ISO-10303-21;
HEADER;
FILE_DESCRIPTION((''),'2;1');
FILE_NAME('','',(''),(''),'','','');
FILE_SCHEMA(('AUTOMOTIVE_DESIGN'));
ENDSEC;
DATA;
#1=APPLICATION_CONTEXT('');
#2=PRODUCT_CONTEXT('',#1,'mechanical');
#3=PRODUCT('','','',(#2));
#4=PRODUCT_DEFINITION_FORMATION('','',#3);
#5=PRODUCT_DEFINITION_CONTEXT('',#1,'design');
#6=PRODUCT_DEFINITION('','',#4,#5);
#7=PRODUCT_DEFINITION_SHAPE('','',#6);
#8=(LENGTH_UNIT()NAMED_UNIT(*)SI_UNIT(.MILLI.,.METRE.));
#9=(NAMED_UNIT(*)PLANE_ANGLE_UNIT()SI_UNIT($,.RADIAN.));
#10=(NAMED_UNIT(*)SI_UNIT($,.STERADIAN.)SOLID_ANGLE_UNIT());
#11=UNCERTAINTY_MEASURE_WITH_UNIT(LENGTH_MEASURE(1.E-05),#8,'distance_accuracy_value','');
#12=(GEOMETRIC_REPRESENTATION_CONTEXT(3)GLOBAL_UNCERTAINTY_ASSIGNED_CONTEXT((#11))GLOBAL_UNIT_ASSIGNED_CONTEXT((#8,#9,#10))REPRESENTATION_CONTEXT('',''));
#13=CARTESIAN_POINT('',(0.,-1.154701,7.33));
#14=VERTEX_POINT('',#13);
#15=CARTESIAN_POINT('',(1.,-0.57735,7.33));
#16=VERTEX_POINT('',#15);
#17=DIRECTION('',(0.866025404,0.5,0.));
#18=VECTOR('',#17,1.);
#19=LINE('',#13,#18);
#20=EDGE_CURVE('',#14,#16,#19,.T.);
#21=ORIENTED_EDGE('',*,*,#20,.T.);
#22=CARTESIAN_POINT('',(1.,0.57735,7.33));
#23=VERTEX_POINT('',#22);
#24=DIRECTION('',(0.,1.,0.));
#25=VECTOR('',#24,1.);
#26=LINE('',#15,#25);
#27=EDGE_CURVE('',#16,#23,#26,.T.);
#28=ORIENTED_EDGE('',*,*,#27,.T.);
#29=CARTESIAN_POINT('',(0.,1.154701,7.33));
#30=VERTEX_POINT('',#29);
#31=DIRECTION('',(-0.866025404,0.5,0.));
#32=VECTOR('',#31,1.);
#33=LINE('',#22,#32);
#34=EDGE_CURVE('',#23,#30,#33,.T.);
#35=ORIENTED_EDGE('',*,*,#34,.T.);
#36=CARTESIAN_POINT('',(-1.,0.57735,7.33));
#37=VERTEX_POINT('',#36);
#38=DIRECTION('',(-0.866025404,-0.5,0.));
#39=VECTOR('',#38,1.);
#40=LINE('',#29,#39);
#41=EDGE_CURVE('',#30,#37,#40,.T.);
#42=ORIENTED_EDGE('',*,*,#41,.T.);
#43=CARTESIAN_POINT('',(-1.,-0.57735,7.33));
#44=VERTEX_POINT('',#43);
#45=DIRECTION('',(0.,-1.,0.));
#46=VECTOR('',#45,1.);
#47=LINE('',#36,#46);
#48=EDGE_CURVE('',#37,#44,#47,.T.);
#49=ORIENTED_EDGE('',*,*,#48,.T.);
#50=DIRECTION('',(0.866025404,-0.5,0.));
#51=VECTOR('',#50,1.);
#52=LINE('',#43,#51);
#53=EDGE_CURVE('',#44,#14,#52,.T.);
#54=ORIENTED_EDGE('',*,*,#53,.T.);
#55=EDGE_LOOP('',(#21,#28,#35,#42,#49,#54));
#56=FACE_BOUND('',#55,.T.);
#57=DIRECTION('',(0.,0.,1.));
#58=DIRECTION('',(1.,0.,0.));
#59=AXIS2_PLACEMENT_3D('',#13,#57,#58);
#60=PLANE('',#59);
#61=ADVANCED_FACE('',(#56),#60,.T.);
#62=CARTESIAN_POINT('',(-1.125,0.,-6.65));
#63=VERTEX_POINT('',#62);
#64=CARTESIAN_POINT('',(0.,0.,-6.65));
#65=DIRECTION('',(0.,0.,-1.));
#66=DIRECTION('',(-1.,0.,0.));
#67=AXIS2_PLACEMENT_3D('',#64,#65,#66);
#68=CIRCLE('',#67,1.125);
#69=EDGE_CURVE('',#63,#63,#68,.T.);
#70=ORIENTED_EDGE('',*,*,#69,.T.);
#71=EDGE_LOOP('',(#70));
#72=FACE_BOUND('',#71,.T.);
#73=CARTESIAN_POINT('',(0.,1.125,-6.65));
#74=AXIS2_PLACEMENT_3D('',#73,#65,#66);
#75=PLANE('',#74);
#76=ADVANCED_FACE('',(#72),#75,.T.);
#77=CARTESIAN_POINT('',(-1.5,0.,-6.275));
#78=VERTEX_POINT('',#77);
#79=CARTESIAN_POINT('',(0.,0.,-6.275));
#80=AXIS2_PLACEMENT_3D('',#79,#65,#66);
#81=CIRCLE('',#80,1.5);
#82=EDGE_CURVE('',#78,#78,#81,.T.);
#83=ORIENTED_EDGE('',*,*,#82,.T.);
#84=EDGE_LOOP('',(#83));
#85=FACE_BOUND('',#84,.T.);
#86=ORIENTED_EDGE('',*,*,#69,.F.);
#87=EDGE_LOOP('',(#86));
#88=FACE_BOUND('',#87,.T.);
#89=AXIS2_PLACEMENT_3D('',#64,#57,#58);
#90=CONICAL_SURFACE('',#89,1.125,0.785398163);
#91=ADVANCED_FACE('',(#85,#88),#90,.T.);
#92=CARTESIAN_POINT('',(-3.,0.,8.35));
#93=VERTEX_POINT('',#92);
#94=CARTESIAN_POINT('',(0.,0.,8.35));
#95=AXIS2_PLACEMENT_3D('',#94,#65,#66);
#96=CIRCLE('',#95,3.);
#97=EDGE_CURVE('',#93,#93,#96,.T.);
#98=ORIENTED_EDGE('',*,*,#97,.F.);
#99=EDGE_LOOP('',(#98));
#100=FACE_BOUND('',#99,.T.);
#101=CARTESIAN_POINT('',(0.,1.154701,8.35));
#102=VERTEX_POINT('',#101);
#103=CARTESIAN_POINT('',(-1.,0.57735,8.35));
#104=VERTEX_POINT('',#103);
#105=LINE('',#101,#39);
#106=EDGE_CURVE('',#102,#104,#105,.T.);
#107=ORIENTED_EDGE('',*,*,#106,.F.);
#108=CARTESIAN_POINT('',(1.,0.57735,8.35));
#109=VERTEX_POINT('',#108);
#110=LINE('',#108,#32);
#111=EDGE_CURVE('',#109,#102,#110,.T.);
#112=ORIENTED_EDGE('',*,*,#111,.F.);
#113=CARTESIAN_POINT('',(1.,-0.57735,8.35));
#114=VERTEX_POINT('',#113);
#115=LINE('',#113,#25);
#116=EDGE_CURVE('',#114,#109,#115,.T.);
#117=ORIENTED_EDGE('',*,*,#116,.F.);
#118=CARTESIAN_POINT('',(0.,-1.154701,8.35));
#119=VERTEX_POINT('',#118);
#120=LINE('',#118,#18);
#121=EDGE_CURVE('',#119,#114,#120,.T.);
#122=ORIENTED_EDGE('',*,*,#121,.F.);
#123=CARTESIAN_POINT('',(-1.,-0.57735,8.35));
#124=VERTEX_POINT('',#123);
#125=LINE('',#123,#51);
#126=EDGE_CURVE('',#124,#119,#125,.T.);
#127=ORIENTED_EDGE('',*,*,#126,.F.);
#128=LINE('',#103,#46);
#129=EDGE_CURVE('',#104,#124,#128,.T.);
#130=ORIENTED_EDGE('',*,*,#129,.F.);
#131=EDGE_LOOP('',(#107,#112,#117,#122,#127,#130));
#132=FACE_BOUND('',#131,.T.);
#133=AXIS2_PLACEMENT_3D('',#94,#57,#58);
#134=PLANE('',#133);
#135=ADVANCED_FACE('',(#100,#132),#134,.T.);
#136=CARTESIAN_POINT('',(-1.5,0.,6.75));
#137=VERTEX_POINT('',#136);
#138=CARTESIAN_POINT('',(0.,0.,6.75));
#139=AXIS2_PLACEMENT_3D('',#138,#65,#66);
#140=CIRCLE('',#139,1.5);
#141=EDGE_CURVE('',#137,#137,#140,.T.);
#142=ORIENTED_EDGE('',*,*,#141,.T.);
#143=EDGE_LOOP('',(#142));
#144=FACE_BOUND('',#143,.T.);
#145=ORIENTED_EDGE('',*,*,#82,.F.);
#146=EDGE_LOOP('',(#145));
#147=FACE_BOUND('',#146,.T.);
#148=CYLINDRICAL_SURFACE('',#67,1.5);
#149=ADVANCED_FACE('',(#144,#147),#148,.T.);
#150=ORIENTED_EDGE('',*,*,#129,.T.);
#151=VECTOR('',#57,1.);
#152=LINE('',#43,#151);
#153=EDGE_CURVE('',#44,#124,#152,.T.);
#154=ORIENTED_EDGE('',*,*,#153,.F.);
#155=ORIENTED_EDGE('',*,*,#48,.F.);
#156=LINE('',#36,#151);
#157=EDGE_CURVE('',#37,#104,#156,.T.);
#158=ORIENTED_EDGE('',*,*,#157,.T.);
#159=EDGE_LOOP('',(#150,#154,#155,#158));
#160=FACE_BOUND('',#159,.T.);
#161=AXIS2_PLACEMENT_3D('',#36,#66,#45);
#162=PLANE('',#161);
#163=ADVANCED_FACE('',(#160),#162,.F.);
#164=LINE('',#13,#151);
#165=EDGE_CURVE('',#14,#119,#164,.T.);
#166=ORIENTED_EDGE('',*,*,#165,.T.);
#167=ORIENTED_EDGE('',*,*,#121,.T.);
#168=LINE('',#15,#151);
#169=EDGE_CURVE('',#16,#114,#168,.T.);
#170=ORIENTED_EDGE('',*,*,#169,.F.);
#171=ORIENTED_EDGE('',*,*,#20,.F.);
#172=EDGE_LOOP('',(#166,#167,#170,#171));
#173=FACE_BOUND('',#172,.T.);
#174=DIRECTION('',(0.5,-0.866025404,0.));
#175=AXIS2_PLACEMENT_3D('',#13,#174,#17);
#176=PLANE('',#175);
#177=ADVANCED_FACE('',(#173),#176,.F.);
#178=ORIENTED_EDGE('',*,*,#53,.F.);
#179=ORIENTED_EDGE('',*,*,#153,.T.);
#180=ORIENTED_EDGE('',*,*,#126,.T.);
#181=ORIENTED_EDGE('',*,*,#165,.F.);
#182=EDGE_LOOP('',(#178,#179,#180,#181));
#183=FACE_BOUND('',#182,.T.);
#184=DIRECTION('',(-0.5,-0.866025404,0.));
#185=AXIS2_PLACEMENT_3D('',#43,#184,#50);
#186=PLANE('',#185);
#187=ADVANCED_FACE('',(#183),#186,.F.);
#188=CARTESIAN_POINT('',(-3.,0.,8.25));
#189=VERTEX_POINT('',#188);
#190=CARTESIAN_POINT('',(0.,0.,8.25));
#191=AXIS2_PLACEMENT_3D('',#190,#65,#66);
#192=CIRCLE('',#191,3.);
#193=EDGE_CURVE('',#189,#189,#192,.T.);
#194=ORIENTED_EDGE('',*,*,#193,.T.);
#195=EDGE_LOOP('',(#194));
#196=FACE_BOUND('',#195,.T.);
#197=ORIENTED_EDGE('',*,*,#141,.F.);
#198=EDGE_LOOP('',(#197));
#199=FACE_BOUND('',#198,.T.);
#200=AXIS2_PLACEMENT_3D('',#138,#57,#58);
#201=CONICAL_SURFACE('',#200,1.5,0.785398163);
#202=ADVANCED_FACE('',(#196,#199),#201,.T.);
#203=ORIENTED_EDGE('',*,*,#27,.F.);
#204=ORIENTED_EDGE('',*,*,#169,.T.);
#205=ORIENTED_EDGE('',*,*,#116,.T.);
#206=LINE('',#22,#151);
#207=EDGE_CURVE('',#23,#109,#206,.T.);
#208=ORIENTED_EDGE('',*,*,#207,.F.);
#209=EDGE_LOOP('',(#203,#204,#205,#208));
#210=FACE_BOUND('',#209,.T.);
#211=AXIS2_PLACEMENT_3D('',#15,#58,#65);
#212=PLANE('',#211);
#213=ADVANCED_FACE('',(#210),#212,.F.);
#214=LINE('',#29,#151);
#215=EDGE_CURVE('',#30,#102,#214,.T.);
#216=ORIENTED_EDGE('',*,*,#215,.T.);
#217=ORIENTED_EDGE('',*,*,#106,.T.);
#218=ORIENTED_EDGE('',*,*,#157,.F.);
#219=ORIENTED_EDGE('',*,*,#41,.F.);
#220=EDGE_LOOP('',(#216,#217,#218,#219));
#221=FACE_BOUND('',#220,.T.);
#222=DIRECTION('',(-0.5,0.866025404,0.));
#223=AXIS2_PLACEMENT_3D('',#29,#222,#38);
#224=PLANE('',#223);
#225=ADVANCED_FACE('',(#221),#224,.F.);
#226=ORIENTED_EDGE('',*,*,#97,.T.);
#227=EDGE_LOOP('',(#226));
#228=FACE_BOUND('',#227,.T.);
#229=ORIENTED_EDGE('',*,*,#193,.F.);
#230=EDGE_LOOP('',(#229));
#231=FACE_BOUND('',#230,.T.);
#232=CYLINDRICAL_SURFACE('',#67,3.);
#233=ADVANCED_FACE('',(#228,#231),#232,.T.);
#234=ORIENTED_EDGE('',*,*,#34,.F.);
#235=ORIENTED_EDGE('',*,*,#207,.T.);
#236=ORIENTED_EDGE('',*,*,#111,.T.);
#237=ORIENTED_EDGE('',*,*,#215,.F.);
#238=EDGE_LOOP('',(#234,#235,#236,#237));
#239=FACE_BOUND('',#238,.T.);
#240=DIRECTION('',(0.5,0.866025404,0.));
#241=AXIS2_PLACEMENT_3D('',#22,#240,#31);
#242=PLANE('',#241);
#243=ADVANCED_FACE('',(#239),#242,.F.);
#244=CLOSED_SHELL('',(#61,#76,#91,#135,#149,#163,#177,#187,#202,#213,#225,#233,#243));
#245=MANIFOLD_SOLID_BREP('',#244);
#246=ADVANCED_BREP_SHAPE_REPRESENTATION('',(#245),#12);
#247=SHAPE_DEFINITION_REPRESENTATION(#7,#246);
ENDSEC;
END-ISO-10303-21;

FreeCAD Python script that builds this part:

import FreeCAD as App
import Part
import Sketcher
Q = App.Units.Quantity

doc = App.newDocument("Part")
body = doc.addObject("PartDesign::Body", "Body")

sketch1 = body.newObject("Sketcher::SketchObject", "Sketch")
sketch1.AttachmentSupport = (doc.getObject("YZ_Plane"), [""])
sketch1.MapMode = "FlatFace"
sketch1.addGeometry([
    Part.LineSegment(App.Vector(3, 8.35, 0), App.Vector(0, 8.35, 0)),
    Part.LineSegment(App.Vector(0, 8.35, 0), App.Vector(0, -6.65, 0)),
    Part.LineSegment(App.Vector(0, -6.65, 0), App.Vector(1.12, -6.65, 0)),
    Part.LineSegment(App.Vector(1.12, -6.65, 0), App.Vector(1.5, -6.28, 0)),
    Part.LineSegment(App.Vector(1.5, -6.28, 0), App.Vector(1.5, 6.75, 0)),
    Part.LineSegment(App.Vector(1.5, 6.75, 0), App.Vector(3, 8.25, 0)),
    Part.LineSegment(App.Vector(3, 8.25, 0), App.Vector(3, 8.35, 0)),
], False)
sketch1.addConstraint([
    Sketcher.Constraint("Coincident", 0, 2, 1, 1),
    Sketcher.Constraint("Coincident", 1, 2, 2, 1),
    Sketcher.Constraint("Coincident", 2, 2, 3, 1),
    Sketcher.Constraint("Coincident", 3, 2, 4, 1),
    Sketcher.Constraint("Coincident", 4, 2, 5, 1),
    Sketcher.Constraint("Coincident", 5, 2, 6, 1),
    Sketcher.Constraint("Coincident", 6, 2, 0, 1),
    Sketcher.Constraint("Horizontal", 0),
    Sketcher.Constraint("Vertical", 1),
    Sketcher.Constraint("Horizontal", 2),
    Sketcher.Constraint("Vertical", 4),
    Sketcher.Constraint("Vertical", 6),
    Sketcher.Constraint("PointOnObject", 0, 2, -2),
    Sketcher.Constraint("Parallel", 3, 5),
    Sketcher.Constraint("DistanceX", 0, 2, 0, 1, 3.0),
    Sketcher.Constraint("DistanceY", 1, 2, 1, 1, 15.0),
    Sketcher.Constraint("Angle", 3, Q("45 deg")),
    Sketcher.Constraint("DistanceY", 6, 1, 6, 2, 0.1),
    Sketcher.Constraint("DistanceX", -1, 1, 3, 2, 1.5),
    Sketcher.Constraint("DistanceX", 2, 1, 2, 2, 1.125),
    Sketcher.Constraint("DistanceY", -1, 1, 0, 2, 8.35),
])
revolution = body.newObject("PartDesign::Revolution", "Revolution")
revolution.Profile = sketch1
revolution.ReferenceAxis = (sketch1, ["V_Axis"])
revolution.Angle = 360

sketch2 = body.newObject("Sketcher::SketchObject", "Sketch001")
sketch2.AttachmentSupport = (doc.getObject("XY_Plane"), [""])
sketch2.MapMode = "FlatFace"
sketch2.AttachmentOffset = App.Placement(App.Vector(0, 0, 8.35), App.Rotation())
sketch2.addGeometry([
    Part.LineSegment(App.Vector(0, -1.2, 0), App.Vector(1, -0.6, 0)),
    Part.LineSegment(App.Vector(1, -0.6, 0), App.Vector(1, 0.6, 0)),
    Part.LineSegment(App.Vector(1, 0.6, 0), App.Vector(0, 1.2, 0)),
    Part.LineSegment(App.Vector(0, 1.2, 0), App.Vector(-1, 0.6, 0)),
    Part.LineSegment(App.Vector(-1, 0.6, 0), App.Vector(-1, -0.6, 0)),
    Part.LineSegment(App.Vector(-1, -0.6, 0), App.Vector(0, -1.2, 0)),
], False)
sketch2.addConstraint([
    Sketcher.Constraint("Coincident", 0, 2, 1, 1),
    Sketcher.Constraint("Coincident", 1, 2, 2, 1),
    Sketcher.Constraint("Coincident", 2, 2, 3, 1),
    Sketcher.Constraint("Coincident", 3, 2, 4, 1),
    Sketcher.Constraint("Coincident", 4, 2, 5, 1),
    Sketcher.Constraint("Coincident", 5, 2, 0, 1),
    Sketcher.Constraint("Vertical", 1),
    Sketcher.Constraint("Vertical", 4),
    Sketcher.Constraint("Symmetric", 0, 2, 3, 2, -1, 1),
    Sketcher.Constraint("Symmetric", 2, 2, 5, 2, -1, 1),
    Sketcher.Constraint("PointOnObject", 2, 2, -2),
    Sketcher.Constraint("Parallel", 2, 5),
    Sketcher.Constraint("Horizontal", 1, 2, 3, 2),
    Sketcher.Constraint("Angle", 0, Q("30 deg")),
    Sketcher.Constraint("DistanceX", -1, 1, 0, 2, 1.0),
    Sketcher.Constraint("DistanceY", 1, 1, 1, 2, 1.154701),
])
pocket1 = body.newObject("PartDesign::Pocket", "Pocket")
pocket1.Profile = sketch2
pocket1.Length = 1.02

doc.recompute()
